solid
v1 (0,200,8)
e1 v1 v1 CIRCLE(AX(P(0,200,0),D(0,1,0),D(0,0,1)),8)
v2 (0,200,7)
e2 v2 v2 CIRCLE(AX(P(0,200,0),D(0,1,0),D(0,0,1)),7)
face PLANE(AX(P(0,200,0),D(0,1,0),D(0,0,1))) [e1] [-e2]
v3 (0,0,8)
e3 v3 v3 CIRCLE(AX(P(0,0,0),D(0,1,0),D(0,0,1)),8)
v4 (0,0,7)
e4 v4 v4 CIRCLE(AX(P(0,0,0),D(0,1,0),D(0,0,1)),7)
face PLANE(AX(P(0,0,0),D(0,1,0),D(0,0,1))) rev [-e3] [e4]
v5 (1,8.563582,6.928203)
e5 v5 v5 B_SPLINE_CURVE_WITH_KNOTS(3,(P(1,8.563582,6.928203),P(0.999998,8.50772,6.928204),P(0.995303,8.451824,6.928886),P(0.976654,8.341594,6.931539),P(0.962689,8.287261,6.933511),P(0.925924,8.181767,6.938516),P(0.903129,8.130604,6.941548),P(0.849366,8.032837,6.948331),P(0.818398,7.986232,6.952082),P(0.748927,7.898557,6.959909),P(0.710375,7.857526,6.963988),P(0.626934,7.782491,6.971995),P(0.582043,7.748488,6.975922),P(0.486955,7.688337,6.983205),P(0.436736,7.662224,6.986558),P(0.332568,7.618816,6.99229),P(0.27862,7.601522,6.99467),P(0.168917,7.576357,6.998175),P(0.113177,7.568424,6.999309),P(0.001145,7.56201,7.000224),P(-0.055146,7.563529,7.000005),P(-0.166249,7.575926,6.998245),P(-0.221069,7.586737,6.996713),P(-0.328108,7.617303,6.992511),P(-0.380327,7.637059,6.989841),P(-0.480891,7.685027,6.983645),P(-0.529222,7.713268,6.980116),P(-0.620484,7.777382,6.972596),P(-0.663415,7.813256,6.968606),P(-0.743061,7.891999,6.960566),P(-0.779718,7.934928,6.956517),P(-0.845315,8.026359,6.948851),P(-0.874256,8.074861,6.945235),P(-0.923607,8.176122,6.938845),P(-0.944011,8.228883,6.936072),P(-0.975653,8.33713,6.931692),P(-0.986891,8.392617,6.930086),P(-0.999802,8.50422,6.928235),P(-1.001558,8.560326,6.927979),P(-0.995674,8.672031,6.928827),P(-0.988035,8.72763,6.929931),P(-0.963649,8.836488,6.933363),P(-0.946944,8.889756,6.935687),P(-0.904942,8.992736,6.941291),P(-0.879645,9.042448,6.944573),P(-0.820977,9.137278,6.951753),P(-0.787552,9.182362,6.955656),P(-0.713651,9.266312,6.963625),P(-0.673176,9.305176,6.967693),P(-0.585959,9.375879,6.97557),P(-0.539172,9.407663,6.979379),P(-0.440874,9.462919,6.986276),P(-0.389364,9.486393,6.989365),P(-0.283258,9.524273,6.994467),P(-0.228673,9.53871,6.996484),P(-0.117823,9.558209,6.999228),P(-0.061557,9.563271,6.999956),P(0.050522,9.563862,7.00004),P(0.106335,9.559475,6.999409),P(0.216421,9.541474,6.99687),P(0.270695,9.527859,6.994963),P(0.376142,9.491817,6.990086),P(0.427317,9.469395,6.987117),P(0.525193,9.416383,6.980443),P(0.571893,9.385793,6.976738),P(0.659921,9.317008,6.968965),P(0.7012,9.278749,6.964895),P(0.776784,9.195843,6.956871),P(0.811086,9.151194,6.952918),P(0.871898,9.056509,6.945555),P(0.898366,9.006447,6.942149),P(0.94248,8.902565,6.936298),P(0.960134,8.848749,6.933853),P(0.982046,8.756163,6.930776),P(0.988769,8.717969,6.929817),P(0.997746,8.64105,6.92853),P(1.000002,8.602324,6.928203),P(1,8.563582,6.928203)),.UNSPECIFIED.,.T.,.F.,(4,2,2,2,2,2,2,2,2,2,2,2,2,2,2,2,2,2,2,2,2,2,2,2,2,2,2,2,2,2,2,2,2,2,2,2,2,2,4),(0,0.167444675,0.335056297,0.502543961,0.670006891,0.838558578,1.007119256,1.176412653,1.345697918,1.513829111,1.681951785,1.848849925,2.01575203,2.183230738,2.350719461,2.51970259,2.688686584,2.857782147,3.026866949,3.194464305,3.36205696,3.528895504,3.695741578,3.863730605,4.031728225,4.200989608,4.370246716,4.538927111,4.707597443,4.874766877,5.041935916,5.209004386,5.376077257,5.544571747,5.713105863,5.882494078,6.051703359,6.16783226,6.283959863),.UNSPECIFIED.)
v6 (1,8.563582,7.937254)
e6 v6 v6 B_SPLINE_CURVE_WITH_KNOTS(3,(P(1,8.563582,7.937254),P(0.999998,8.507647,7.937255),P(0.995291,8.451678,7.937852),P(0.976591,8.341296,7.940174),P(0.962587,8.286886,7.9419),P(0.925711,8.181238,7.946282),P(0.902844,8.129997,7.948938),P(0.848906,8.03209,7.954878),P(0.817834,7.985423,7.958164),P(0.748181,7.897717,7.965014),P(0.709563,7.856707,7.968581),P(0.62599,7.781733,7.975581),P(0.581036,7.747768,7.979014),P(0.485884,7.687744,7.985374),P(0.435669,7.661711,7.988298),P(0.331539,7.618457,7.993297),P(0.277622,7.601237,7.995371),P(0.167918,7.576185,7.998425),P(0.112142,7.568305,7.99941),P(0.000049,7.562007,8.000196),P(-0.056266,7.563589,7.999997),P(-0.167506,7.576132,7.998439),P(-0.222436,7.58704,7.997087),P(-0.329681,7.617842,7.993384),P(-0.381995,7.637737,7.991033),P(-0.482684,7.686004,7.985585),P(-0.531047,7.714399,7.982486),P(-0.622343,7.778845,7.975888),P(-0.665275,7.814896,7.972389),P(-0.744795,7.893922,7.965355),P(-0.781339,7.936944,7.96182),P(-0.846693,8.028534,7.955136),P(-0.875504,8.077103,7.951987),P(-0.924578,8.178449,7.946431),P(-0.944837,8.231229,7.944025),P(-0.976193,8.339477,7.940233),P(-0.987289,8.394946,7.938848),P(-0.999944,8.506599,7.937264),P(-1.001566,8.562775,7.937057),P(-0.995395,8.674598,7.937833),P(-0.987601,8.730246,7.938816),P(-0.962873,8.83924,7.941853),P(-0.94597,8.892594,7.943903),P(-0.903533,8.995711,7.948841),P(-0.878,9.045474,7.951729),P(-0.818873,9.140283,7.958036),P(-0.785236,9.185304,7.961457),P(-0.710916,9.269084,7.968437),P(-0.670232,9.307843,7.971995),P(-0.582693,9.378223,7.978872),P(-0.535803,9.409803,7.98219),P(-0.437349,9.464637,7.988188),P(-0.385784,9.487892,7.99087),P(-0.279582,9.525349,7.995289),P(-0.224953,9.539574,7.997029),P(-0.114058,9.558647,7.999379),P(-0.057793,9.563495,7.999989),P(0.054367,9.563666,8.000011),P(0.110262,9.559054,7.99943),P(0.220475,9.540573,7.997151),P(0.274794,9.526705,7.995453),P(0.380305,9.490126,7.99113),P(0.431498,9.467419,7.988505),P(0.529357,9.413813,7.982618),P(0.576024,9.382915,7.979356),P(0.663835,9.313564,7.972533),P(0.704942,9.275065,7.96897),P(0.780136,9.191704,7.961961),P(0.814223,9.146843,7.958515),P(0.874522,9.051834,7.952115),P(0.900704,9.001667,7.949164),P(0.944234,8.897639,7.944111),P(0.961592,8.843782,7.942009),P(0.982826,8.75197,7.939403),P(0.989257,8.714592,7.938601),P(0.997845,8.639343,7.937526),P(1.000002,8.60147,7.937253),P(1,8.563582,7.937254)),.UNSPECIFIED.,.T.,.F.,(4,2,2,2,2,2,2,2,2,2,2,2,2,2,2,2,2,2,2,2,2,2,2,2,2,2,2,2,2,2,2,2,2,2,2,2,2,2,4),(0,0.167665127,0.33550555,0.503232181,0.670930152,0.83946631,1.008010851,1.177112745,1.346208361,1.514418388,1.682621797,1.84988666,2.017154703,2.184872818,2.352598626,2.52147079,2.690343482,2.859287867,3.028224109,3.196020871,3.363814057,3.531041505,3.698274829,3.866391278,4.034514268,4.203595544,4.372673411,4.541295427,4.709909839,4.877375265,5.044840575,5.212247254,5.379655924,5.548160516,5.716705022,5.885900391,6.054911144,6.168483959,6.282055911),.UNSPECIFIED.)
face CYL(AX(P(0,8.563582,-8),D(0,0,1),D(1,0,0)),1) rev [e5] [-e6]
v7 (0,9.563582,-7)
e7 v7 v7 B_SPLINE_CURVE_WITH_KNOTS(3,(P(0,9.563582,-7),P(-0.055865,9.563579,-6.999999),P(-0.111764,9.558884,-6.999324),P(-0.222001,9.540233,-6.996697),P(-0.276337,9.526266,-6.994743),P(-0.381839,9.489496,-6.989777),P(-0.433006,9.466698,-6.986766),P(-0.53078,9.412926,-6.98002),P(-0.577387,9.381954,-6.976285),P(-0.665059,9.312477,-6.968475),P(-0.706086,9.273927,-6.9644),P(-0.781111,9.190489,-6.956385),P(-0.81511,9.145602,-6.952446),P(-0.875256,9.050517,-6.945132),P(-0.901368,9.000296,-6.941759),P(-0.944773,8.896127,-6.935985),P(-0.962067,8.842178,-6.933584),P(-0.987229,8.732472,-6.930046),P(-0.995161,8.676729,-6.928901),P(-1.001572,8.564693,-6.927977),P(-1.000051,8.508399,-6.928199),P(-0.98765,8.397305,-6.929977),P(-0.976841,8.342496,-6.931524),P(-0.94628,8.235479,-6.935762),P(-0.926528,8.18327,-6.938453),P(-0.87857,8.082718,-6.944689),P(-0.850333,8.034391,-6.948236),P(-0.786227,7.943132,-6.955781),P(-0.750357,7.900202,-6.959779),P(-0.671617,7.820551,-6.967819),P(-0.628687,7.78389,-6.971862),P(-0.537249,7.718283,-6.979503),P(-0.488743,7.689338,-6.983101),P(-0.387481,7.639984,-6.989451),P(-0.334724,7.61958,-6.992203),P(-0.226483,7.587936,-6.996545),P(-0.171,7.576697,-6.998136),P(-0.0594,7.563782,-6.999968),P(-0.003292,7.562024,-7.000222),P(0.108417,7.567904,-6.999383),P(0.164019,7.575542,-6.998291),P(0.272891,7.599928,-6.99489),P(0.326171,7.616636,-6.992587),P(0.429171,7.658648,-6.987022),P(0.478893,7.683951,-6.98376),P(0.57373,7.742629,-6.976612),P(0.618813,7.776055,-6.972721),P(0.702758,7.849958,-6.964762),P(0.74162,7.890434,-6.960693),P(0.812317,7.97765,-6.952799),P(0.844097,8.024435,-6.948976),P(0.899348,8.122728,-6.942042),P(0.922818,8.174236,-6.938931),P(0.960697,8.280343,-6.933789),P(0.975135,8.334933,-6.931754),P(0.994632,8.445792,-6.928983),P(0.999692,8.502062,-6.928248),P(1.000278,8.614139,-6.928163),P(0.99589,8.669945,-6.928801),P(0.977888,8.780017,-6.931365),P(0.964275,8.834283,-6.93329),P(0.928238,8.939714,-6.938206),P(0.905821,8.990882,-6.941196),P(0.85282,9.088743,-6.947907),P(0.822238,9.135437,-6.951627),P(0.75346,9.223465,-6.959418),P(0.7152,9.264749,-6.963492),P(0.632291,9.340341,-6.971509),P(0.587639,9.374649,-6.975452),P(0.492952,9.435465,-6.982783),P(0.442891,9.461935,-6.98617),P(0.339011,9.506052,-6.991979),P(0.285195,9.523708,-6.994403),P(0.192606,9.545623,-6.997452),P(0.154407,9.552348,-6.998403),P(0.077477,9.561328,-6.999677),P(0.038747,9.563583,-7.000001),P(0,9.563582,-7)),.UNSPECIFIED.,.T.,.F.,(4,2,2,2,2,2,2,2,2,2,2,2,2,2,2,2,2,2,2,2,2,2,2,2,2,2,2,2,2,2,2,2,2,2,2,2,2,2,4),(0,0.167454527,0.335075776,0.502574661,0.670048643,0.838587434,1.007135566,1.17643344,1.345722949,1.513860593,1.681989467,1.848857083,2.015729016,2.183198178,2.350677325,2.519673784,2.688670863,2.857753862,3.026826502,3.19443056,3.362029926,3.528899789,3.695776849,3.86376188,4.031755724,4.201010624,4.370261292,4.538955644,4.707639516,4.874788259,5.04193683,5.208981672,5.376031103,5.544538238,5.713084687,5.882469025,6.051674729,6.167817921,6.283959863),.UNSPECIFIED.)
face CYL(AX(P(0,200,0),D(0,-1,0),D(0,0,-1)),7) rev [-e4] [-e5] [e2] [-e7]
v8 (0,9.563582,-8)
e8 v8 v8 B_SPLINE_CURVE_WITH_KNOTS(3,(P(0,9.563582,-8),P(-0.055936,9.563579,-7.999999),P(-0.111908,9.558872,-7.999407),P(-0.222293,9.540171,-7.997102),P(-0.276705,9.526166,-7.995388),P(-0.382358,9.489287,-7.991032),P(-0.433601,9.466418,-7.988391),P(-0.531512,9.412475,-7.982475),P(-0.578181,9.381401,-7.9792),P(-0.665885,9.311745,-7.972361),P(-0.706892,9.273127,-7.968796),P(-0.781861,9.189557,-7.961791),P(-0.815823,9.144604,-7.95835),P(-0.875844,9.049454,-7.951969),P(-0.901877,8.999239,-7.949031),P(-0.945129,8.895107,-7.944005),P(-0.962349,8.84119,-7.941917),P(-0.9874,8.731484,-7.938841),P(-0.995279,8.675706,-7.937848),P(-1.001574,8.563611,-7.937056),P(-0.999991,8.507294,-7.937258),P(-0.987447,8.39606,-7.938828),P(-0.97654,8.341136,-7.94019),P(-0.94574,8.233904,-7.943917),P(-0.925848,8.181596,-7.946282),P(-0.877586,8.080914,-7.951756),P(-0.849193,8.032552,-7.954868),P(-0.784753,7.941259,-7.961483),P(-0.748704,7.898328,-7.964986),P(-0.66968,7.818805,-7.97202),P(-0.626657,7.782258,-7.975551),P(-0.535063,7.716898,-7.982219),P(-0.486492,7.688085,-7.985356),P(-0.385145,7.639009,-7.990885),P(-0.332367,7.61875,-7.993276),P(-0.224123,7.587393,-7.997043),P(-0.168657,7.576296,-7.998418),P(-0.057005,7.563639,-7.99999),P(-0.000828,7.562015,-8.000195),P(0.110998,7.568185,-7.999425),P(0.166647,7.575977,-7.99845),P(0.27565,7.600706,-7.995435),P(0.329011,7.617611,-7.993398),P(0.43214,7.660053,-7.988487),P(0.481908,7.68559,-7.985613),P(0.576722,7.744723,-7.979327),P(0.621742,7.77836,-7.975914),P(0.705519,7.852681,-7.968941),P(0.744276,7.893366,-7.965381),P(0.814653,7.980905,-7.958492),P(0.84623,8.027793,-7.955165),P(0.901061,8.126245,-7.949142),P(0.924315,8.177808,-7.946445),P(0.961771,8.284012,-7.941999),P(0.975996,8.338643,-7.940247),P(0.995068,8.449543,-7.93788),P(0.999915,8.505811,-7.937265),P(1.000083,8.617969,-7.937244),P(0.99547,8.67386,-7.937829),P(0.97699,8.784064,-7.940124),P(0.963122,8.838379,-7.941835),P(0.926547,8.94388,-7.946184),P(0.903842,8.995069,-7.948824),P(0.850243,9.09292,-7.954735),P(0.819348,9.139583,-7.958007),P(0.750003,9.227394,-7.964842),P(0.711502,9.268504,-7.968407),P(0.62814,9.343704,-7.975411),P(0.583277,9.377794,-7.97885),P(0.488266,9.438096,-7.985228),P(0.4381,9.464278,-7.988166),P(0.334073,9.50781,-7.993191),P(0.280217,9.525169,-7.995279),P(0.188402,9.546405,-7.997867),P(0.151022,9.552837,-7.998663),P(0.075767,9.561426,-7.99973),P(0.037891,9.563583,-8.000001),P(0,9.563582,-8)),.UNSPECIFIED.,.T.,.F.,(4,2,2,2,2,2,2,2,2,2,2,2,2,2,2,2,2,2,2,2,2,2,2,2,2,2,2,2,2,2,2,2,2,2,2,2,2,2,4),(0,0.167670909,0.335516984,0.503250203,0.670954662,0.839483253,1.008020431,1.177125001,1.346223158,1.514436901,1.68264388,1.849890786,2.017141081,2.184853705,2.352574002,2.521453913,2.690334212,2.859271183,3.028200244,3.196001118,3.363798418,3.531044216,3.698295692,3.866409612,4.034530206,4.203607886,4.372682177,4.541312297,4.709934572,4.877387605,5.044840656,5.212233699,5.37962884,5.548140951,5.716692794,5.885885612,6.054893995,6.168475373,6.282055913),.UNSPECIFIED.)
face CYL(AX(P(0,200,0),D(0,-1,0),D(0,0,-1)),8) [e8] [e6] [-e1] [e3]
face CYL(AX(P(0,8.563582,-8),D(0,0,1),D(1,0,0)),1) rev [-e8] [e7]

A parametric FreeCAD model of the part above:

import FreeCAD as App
import Part
import Sketcher
from FreeCAD import Vector

doc = App.newDocument("Part")
body = doc.addObject("PartDesign::Body", "Body")

sketch1 = body.newObject("Sketcher::SketchObject", "Sketch")
sketch1.AttachmentSupport = (doc.getObject("XZ_Plane"), [""])
sketch1.MapMode = "FlatFace"
sketch1.addGeometry([
    Part.Circle(Vector(0, 0, 0), Vector(0, 0, 1), 8),
    Part.Circle(Vector(0, 0, 0), Vector(0, 0, 1), 7),
], False)
sketch1.addConstraint([
    Sketcher.Constraint("Coincident", 0, 3, -1, 1),
    Sketcher.Constraint("Coincident", 1, 3, -1, 1),
    Sketcher.Constraint("Diameter", 0, 16.0),
    Sketcher.Constraint("Diameter", 1, 14.0),
])
pad1 = body.newObject("PartDesign::Pad", "Pad")
pad1.Profile = sketch1
pad1.Length = 200
pad1.Reversed = True

sketch2 = body.newObject("Sketcher::SketchObject", "Sketch001")
sketch2.AttachmentSupport = (doc.getObject("XY_Plane"), [""])
sketch2.MapMode = "FlatFace"
sketch2.addGeometry(Part.Circle(Vector(0, 8.6, 0), Vector(0, 0, 1), 1), False)
sketch2.addConstraint([
    Sketcher.Constraint("PointOnObject", 0, 3, -2),
    Sketcher.Constraint("Diameter", 0, 2.0),
    Sketcher.Constraint("DistanceY", -1, 1, 0, 3, 8.563582),
])
pocket1 = body.newObject("PartDesign::Pocket", "Pocket")
pocket1.Profile = sketch2
pocket1.Type = "ThroughAll"
pocket1.Midplane = True

doc.recompute()
